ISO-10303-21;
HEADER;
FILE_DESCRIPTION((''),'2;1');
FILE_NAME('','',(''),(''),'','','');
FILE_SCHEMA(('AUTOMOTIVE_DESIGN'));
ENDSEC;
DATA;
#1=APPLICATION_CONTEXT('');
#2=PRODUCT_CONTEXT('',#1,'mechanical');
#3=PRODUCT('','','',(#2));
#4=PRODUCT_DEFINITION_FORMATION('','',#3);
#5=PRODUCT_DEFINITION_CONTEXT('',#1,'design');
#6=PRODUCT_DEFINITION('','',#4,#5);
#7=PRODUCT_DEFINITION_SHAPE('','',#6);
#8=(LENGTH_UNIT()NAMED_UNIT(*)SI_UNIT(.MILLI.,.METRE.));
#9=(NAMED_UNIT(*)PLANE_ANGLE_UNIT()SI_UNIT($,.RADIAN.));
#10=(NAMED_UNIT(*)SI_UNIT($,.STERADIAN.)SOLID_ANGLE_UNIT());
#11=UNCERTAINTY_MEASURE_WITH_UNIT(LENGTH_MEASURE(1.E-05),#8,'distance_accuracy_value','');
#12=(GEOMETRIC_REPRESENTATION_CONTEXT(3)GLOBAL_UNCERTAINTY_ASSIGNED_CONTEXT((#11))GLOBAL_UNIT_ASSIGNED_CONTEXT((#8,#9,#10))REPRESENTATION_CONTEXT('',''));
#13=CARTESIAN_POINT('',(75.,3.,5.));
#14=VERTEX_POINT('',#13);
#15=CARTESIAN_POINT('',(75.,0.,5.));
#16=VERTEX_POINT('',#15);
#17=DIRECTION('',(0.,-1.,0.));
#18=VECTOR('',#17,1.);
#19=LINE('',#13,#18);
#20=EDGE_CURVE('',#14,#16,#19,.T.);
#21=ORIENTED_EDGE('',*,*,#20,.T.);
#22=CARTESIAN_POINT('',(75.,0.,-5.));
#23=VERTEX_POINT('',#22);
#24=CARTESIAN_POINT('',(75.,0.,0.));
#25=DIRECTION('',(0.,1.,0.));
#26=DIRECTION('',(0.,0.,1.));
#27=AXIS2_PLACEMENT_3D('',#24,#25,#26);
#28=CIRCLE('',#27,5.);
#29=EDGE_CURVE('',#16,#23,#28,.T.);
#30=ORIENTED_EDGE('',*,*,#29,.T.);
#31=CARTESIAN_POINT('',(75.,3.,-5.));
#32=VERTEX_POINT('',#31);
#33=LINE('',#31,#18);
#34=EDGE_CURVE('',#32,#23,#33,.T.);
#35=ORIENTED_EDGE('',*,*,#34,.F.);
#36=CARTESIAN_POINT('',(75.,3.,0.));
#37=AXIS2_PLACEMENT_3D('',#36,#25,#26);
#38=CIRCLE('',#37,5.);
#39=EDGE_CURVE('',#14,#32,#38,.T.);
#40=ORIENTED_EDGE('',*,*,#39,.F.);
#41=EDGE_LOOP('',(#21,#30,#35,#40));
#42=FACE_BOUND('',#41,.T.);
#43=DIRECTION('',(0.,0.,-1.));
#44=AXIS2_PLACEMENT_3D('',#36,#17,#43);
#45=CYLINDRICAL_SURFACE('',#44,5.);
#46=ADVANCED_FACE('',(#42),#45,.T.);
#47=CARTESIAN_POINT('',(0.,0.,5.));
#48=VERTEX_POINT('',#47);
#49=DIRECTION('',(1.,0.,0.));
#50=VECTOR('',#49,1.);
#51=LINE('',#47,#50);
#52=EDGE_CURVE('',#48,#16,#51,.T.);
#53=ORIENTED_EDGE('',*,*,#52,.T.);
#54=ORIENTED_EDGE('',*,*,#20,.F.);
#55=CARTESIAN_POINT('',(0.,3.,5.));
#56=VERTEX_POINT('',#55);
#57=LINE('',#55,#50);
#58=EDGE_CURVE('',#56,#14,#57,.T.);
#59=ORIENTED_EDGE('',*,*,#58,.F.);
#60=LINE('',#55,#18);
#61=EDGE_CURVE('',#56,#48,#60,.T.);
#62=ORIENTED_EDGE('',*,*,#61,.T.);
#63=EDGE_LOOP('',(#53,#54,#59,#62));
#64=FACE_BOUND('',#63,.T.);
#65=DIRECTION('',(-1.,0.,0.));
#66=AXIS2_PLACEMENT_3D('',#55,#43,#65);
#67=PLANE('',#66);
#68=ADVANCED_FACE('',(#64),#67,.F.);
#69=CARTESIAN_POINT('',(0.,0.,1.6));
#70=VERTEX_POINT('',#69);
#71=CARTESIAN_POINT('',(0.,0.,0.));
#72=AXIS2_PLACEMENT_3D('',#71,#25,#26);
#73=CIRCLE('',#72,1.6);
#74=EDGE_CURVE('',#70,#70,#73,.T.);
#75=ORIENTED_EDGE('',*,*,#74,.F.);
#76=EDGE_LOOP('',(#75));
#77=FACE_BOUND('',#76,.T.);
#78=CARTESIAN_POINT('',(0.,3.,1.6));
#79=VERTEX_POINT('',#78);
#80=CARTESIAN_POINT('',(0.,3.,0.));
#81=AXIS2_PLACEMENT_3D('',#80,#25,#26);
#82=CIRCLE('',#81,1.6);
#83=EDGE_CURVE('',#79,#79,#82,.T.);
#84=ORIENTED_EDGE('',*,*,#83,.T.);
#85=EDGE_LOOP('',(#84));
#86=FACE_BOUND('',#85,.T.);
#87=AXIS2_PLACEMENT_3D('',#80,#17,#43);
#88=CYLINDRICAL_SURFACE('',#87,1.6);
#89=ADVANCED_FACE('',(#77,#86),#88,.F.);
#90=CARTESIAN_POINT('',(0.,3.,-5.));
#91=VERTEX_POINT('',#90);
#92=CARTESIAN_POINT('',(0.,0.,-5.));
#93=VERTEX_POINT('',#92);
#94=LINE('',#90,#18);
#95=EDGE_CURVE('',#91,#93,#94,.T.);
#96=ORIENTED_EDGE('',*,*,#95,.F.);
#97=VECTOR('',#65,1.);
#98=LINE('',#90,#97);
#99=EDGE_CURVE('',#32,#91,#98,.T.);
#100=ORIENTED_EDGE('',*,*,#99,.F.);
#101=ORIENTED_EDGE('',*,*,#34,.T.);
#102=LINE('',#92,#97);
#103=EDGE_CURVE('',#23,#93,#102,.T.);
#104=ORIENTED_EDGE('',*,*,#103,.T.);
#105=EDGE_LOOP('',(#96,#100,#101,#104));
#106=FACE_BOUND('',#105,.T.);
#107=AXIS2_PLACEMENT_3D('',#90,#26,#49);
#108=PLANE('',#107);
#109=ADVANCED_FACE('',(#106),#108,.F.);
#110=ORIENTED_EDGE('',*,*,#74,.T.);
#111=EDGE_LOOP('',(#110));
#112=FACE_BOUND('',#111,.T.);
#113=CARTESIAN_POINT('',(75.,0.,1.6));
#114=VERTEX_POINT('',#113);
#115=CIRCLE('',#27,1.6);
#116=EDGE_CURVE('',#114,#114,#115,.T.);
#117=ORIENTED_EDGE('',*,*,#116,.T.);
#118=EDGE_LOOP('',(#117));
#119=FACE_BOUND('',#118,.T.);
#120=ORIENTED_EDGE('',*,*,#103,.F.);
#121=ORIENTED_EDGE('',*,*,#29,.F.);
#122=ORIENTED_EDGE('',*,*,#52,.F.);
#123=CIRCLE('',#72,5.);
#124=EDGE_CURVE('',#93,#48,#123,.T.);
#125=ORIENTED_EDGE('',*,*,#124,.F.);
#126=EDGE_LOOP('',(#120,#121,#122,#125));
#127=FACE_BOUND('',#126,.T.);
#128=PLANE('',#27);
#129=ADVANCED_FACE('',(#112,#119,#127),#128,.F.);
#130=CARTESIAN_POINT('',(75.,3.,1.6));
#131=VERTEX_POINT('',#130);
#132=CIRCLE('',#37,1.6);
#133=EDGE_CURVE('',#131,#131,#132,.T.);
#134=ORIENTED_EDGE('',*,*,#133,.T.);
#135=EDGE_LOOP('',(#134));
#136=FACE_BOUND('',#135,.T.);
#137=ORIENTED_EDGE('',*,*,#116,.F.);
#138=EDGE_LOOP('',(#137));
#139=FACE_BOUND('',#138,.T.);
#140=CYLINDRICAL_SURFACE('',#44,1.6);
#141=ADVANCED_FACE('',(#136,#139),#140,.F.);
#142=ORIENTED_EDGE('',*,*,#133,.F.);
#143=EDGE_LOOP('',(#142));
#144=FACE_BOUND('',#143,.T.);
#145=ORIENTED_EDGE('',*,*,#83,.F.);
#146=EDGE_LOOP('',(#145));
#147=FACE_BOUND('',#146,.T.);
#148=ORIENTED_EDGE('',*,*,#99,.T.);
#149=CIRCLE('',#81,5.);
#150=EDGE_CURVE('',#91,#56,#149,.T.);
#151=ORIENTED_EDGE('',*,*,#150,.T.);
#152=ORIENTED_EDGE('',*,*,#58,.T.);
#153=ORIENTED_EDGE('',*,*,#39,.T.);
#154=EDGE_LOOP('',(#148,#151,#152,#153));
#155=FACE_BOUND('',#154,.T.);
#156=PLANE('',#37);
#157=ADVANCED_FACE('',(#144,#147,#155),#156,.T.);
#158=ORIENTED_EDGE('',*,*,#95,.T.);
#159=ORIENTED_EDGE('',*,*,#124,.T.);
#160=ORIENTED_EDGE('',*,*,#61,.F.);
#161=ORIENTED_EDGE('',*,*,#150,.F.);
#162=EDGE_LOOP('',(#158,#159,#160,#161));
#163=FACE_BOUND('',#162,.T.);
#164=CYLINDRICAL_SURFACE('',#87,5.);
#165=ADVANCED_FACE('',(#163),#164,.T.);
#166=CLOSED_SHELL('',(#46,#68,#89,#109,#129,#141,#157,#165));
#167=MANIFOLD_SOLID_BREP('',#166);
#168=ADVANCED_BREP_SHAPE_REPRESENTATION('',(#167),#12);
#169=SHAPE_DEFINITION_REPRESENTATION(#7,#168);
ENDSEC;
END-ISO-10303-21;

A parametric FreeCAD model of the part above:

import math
import FreeCAD as App
import Part
import Sketcher
from FreeCAD import Vector

doc = App.newDocument("Part")
body = doc.addObject("PartDesign::Body", "Body")

# Sketch on XZ plane
sketch1 = doc.addObject("Sketcher::SketchObject", "Sketch")
body.addObject(sketch1)
sketch1.AttachmentSupport = (doc.XZ_Plane, [""])
sketch1.MapMode = "FlatFace"
sketch1.addGeometry([
    Part.LineSegment(Vector(0, 5, 0), Vector(75, 5, 0)),  # 0
    Part.ArcOfCircle(Part.Circle(Vector(75, 0, 0), Vector(0, 0, 1), 5), math.radians(-90), math.radians(90)),  # 1
    Part.LineSegment(Vector(75, -5, 0), Vector(0, -5, 0)),  # 2
    Part.ArcOfCircle(Part.Circle(Vector(0, 0, 0), Vector(0, 0, 1), 5), math.radians(90), math.radians(270)),  # 3
    Part.Circle(Vector(0, 0, 0), Vector(0, 0, 1), 1.6),  # 4
    Part.Circle(Vector(75, 0, 0), Vector(0, 0, 1), 1.6),  # 5
], False)
sketch1.addConstraint([
    Sketcher.Constraint("Tangent", 0, 2, 1, 2),
    Sketcher.Constraint("Tangent", 1, 1, 2, 1),
    Sketcher.Constraint("Tangent", 2, 2, 3, 2),
    Sketcher.Constraint("Tangent", 3, 1, 0, 1),
    Sketcher.Constraint("Horizontal", 0),
    Sketcher.Constraint("Horizontal", 2),
    Sketcher.Constraint("Coincident", 3, 3, -1, 1),
    Sketcher.Constraint("Coincident", 4, 3, -1, 1),
    Sketcher.Constraint("Coincident", 5, 3, 1, 3),
    Sketcher.Constraint("Equal", 4, 5),
    Sketcher.Constraint("Radius", 1, 5.0),
    Sketcher.Constraint("Diameter", 4, 3.2),
    Sketcher.Constraint("DistanceX", 0, 1, 0, 2, 75.0),
])
pad1 = doc.addObject("PartDesign::Pad", "Pad")
body.addObject(pad1)
pad1.Profile = sketch1
pad1.Length = 3
pad1.Reversed = True

doc.recompute()
